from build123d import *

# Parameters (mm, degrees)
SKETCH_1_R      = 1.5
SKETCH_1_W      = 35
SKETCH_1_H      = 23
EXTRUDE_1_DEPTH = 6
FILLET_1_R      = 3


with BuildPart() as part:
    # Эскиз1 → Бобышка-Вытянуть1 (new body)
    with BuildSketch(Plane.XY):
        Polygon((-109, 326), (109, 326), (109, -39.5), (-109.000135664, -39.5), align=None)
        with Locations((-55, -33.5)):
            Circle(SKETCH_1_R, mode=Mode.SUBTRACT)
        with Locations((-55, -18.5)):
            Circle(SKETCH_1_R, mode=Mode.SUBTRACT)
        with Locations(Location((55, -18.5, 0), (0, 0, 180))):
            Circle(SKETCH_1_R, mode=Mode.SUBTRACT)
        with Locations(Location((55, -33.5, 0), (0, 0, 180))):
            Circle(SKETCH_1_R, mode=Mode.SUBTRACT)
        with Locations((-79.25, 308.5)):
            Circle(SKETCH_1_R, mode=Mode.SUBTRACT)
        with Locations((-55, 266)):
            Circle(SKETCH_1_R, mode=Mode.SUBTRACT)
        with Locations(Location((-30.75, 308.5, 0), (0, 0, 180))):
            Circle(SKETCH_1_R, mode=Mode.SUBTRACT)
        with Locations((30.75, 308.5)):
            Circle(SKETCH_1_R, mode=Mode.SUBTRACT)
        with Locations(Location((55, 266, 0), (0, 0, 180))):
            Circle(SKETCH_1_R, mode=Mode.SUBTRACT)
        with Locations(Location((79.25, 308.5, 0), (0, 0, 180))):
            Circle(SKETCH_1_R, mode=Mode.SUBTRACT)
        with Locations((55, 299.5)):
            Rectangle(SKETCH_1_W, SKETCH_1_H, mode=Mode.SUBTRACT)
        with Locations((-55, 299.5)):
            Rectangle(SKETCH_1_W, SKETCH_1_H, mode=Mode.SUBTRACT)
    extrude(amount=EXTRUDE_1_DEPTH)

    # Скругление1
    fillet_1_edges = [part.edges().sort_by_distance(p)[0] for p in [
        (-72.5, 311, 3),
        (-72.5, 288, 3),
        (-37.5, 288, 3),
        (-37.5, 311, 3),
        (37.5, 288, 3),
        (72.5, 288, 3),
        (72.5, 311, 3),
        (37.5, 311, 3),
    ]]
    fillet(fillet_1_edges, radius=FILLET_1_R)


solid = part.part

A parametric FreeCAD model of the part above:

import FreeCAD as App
import Part
import Sketcher
Q = App.Units.Quantity


def edges_at(feature, points):
    """Names of the edges that pass closest to the given points."""
    edges = feature.Shape.Edges
    near = lambda p: min(range(len(edges)), key=lambda i: edges[i].distToShape(Part.Vertex(*p))[0])
    return sorted({f"Edge{near(p) + 1}" for p in points})

doc = App.newDocument("Part")
params = doc.addObject("Spreadsheet::Sheet", "Params")
for row, (alias, value) in enumerate([
    ("sketch1_diameter", "3 mm"),
    ("sketch1_width", "218 mm"),
    ("sketch1_width2", "35 mm"),
    ("sketch1_height", "23 mm"),
    ("sketch1_height2", "365.5 mm"),
    ("pad1_length", "6 mm"),
    ("fillet_radius", "3 mm"),
], start=1):
    params.set(f"A{row}", alias)
    params.set(f"B{row}", "=" + value)
    params.setAlias(f"B{row}", alias)

body = doc.addObject("PartDesign::Body", "Body")

# Sketch on XY plane
sketch1 = doc.addObject("Sketcher::SketchObject", "Sketch")
body.addObject(sketch1)
sketch1.AttachmentSupport = (doc.XY_Plane, [""])
sketch1.MapMode = "FlatFace"
sketch1.addGeometry([
    Part.LineSegment(App.Vector(109, 326, 0), App.Vector(-109, 326, 0)),  # 0
    Part.LineSegment(App.Vector(-109, 326, 0), App.Vector(-109, -39.5, 0)),  # 1
    Part.LineSegment(App.Vector(-109, -39.5, 0), App.Vector(109, -39.5, 0)),  # 2
    Part.LineSegment(App.Vector(109, -39.5, 0), App.Vector(109, 326, 0)),  # 3
    Part.Circle(App.Vector(55, -33.5, 0), App.Vector(0, 0, 1), 1.5),  # 4
    Part.Circle(App.Vector(55, -18.5, 0), App.Vector(0, 0, 1), 1.5),  # 5
    Part.Circle(App.Vector(-55, -33.5, 0), App.Vector(0, 0, 1), 1.5),  # 6
    Part.Circle(App.Vector(-55, -18.5, 0), App.Vector(0, 0, 1), 1.5),  # 7
    Part.Circle(App.Vector(55, 266, 0), App.Vector(0, 0, 1), 1.5),  # 8
    Part.Circle(App.Vector(79.2, 308.5, 0), App.Vector(0, 0, 1), 1.5),  # 9
    Part.LineSegment(App.Vector(37.5, 288, 0), App.Vector(37.5, 311, 0)),  # 10
    Part.LineSegment(App.Vector(37.5, 311, 0), App.Vector(72.5, 311, 0)),  # 11
    Part.LineSegment(App.Vector(72.5, 311, 0), App.Vector(72.5, 288, 0)),  # 12
    Part.LineSegment(App.Vector(72.5, 288, 0), App.Vector(37.5, 288, 0)),  # 13
    Part.Circle(App.Vector(30.8, 308.5, 0), App.Vector(0, 0, 1), 1.5),  # 14
    Part.Circle(App.Vector(-30.8, 308.5, 0), App.Vector(0, 0, 1), 1.5),  # 15
    Part.Circle(App.Vector(-55, 266, 0), App.Vector(0, 0, 1), 1.5),  # 16
    Part.LineSegment(App.Vector(-72.5, 288, 0), App.Vector(-72.5, 311, 0)),  # 17
    Part.LineSegment(App.Vector(-72.5, 311, 0), App.Vector(-37.5, 311, 0)),  # 18
    Part.LineSegment(App.Vector(-37.5, 311, 0), App.Vector(-37.5, 288, 0)),  # 19
    Part.LineSegment(App.Vector(-37.5, 288, 0), App.Vector(-72.5, 288, 0)),  # 20
    Part.Circle(App.Vector(-79.2, 308.5, 0), App.Vector(0, 0, 1), 1.5),  # 21
], False)
sketch1.addConstraint([
    Sketcher.Constraint("Coincident", 0, 2, 1, 1),
    Sketcher.Constraint("Coincident", 1, 2, 2, 1),
    Sketcher.Constraint("Coincident", 2, 2, 3, 1),
    Sketcher.Constraint("Coincident", 3, 2, 0, 1),
    Sketcher.Constraint("Coincident", 10, 2, 11, 1),
    Sketcher.Constraint("Coincident", 11, 2, 12, 1),
    Sketcher.Constraint("Coincident", 12, 2, 13, 1),
    Sketcher.Constraint("Coincident", 13, 2, 10, 1),
    Sketcher.Constraint("Coincident", 17, 2, 18, 1),
    Sketcher.Constraint("Coincident", 18, 2, 19, 1),
    Sketcher.Constraint("Coincident", 19, 2, 20, 1),
    Sketcher.Constraint("Coincident", 20, 2, 17, 1),
    Sketcher.Constraint("Horizontal", 0),
    Sketcher.Constraint("Horizontal", 2),
    Sketcher.Constraint("Vertical", 3),
    Sketcher.Constraint("Vertical", 10),
    Sketcher.Constraint("Horizontal", 11),
    Sketcher.Constraint("Vertical", 12),
    Sketcher.Constraint("Horizontal", 13),
    Sketcher.Constraint("Vertical", 17),
    Sketcher.Constraint("Horizontal", 18),
    Sketcher.Constraint("Vertical", 19),
    Sketcher.Constraint("Horizontal", 20),
    Sketcher.Constraint("Equal", 4, 5),
    Sketcher.Constraint("Equal", 5, 6),
    Sketcher.Constraint("Equal", 6, 7),
    Sketcher.Constraint("Equal", 7, 8),
    Sketcher.Constraint("Equal", 8, 9),
    Sketcher.Constraint("Equal", 9, 14),
    Sketcher.Constraint("Equal", 14, 15),
    Sketcher.Constraint("Equal", 15, 16),
    Sketcher.Constraint("Equal", 16, 21),
    Sketcher.Constraint("Symmetric", 4, 3, 6, 3, -2),
    Sketcher.Constraint("Symmetric", 5, 3, 7, 3, -2),
    Sketcher.Constraint("Symmetric", 14, 3, 15, 3, -2),
    Sketcher.Constraint("Symmetric", 8, 3, 16, 3, -2),
    Sketcher.Constraint("Symmetric", 9, 3, 21, 3, -2),
    Sketcher.Constraint("Symmetric", 11, 2, 17, 2, -2),
    Sketcher.Constraint("Symmetric", 13, 2, 19, 2, -2),
    Sketcher.Constraint("Horizontal", 9, 3, 14, 3),
    Sketcher.Constraint("Vertical", 4, 3, 5, 3),
    Sketcher.Constraint("Vertical", 5, 3, 8, 3),
    Sketcher.Constraint("Diameter", 4, Q("3 mm")),
    Sketcher.Constraint("DistanceX", 0, 2, 0, 1, Q("218 mm")),
    Sketcher.Constraint("DistanceX", 11, 1, 11, 2, Q("35 mm")),
    Sketcher.Constraint("DistanceY", 10, 1, 10, 2, Q("23 mm")),
    Sketcher.Constraint("DistanceY", 3, 1, 3, 2, Q("365.5 mm")),
    Sketcher.Constraint("DistanceX", -1, 1, 4, 3, Q("55 mm")),
    Sketcher.Constraint("DistanceY", -1, 1, 8, 3, Q("266 mm")),
    Sketcher.Constraint("DistanceX", 0, 2, -1, 1, Q("109 mm")),
    Sketcher.Constraint("DistanceY", -1, 1, 0, 2, Q("326 mm")),
    Sketcher.Constraint("DistanceY", -1, 1, 10, 2, Q("311 mm")),
    Sketcher.Constraint("DistanceY", 4, 3, 5, 3, Q("15 mm")),
    Sketcher.Constraint("DistanceY", 5, 3, 9, 3, Q("327 mm")),
    Sketcher.Constraint("DistanceX", 15, 3, 9, 3, Q("110 mm")),
    Sketcher.Constraint("DistanceY", 1, 2, 6, 3, Q("6 mm")),
    Sketcher.Constraint("DistanceX", -1, 1, 10, 2, Q("37.5 mm")),
    Sketcher.Constraint("DistanceX", 14, 3, 9, 3, Q("48.5 mm")),
    Sketcher.Constraint("DistanceX", 2, 1, 2, 2, Q("218.000136 mm")),
])
sketch1.setExpression("Constraints[42]", "Params.sketch1_diameter")
sketch1.setExpression("Constraints[43]", "Params.sketch1_width")
sketch1.setExpression("Constraints[44]", "Params.sketch1_width2")
sketch1.setExpression("Constraints[45]", "Params.sketch1_height")
sketch1.setExpression("Constraints[46]", "Params.sketch1_height2")
pad1 = doc.addObject("PartDesign::Pad", "Pad")
body.addObject(pad1)
pad1.Profile = sketch1
pad1.setExpression("Length", "Params.pad1_length")
doc.recompute()

fillet = doc.addObject("PartDesign::Fillet", "Fillet")
body.addObject(fillet)
fillet.Base = (pad1, edges_at(pad1, [
    (-72.5, 311, 3),
    (-72.5, 288, 3),
    (-37.5, 288, 3),
    (-37.5, 311, 3),
    (37.5, 288, 3),
    (72.5, 288, 3),
    (72.5, 311, 3),
    (37.5, 311, 3),
]))
fillet.setExpression("Radius", "Params.fillet_radius")

doc.recompute()
